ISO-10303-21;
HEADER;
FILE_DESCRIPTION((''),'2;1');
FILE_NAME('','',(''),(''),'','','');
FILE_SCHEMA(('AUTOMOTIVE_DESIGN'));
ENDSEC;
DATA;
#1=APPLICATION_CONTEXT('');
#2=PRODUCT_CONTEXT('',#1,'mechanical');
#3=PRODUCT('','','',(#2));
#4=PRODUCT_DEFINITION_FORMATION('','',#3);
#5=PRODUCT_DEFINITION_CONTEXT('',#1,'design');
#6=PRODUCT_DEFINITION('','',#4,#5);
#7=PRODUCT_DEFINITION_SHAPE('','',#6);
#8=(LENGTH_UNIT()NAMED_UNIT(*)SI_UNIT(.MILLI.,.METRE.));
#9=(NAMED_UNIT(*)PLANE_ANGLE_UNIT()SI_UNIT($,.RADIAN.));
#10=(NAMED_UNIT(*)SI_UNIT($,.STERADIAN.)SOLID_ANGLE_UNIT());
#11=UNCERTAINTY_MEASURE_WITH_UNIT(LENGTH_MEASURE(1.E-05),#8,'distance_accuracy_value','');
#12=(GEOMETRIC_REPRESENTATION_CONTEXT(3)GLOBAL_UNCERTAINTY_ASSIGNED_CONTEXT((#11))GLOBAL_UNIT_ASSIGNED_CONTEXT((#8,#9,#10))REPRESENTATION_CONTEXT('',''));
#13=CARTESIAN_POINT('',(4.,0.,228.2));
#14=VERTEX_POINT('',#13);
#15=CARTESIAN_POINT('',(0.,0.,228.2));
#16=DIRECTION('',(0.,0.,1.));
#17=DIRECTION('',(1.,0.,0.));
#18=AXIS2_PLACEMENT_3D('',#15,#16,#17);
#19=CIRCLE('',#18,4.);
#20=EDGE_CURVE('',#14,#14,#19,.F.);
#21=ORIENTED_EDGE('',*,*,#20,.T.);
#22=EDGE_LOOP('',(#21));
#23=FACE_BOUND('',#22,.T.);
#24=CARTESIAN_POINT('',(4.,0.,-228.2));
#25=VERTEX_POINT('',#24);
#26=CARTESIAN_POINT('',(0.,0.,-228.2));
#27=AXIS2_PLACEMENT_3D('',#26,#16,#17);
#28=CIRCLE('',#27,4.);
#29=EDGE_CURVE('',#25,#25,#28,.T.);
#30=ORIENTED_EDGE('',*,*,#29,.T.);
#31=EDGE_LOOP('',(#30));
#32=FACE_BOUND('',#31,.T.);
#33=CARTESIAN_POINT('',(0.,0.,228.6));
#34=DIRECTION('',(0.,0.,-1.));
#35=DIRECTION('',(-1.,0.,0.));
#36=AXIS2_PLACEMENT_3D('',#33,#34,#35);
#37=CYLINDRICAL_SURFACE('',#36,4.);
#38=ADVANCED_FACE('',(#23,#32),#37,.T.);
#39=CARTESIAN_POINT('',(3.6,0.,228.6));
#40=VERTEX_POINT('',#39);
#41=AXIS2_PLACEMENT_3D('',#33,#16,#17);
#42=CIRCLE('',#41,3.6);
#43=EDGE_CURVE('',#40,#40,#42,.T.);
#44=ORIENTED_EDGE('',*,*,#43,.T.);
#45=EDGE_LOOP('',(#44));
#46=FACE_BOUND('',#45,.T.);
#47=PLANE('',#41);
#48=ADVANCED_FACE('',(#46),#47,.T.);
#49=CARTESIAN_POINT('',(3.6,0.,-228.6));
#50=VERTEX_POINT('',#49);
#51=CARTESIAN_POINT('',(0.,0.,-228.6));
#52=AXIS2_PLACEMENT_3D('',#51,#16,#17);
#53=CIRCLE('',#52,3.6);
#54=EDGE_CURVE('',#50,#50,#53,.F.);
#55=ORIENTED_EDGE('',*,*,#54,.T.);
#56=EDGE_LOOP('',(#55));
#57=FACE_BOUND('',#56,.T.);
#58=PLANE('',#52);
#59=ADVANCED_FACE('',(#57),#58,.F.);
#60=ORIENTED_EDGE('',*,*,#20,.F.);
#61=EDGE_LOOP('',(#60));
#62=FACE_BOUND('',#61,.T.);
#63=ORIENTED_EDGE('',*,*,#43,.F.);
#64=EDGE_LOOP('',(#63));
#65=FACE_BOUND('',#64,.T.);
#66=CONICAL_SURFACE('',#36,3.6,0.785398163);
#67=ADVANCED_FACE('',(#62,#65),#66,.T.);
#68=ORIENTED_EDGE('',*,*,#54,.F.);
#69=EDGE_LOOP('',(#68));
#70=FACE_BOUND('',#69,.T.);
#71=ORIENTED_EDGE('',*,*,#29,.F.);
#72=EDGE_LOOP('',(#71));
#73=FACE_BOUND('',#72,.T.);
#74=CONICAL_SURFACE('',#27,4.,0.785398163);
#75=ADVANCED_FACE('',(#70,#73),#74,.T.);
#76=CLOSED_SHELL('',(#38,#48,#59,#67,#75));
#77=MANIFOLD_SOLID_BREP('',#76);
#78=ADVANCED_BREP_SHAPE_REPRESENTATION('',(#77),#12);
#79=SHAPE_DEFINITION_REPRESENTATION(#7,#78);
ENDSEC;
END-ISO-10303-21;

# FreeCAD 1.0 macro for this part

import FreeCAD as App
import Part
import Sketcher

V = App.Vector


def edges_at(feature, points):
    """Names of the edges that pass closest to the given points."""
    edges = feature.Shape.Edges
    near = lambda p: min(range(len(edges)), key=lambda i: edges[i].distToShape(Part.Vertex(*p))[0])
    return sorted({f"Edge{near(p) + 1}" for p in points})

doc = App.newDocument("Part")
body = doc.addObject("PartDesign::Body", "Body")

# Sketch on XY plane
sketch1 = doc.addObject("Sketcher::SketchObject", "Sketch")
body.addObject(sketch1)
sketch1.AttachmentSupport = (doc.XY_Plane, [""])
sketch1.MapMode = "FlatFace"
sketch1.addGeometry(Part.Circle(V(0, 0, 0), V(0, 0, 1), 4), False)
sketch1.addConstraint([
    Sketcher.Constraint("Coincident", 0, 3, -1, 1),
    Sketcher.Constraint("Diameter", 0, 8.0),
])
pad1 = doc.addObject("PartDesign::Pad", "Pad")
body.addObject(pad1)
pad1.Profile = sketch1
pad1.Length = 457.2
pad1.Midplane = True
doc.recompute()

chamfer = doc.addObject("PartDesign::Chamfer", "Chamfer")
body.addObject(chamfer)
chamfer.Base = (pad1, edges_at(pad1, [(-4, 0, -228.6), (-4, 0, 228.6)]))
chamfer.Size = 0.4

doc.recompute()
